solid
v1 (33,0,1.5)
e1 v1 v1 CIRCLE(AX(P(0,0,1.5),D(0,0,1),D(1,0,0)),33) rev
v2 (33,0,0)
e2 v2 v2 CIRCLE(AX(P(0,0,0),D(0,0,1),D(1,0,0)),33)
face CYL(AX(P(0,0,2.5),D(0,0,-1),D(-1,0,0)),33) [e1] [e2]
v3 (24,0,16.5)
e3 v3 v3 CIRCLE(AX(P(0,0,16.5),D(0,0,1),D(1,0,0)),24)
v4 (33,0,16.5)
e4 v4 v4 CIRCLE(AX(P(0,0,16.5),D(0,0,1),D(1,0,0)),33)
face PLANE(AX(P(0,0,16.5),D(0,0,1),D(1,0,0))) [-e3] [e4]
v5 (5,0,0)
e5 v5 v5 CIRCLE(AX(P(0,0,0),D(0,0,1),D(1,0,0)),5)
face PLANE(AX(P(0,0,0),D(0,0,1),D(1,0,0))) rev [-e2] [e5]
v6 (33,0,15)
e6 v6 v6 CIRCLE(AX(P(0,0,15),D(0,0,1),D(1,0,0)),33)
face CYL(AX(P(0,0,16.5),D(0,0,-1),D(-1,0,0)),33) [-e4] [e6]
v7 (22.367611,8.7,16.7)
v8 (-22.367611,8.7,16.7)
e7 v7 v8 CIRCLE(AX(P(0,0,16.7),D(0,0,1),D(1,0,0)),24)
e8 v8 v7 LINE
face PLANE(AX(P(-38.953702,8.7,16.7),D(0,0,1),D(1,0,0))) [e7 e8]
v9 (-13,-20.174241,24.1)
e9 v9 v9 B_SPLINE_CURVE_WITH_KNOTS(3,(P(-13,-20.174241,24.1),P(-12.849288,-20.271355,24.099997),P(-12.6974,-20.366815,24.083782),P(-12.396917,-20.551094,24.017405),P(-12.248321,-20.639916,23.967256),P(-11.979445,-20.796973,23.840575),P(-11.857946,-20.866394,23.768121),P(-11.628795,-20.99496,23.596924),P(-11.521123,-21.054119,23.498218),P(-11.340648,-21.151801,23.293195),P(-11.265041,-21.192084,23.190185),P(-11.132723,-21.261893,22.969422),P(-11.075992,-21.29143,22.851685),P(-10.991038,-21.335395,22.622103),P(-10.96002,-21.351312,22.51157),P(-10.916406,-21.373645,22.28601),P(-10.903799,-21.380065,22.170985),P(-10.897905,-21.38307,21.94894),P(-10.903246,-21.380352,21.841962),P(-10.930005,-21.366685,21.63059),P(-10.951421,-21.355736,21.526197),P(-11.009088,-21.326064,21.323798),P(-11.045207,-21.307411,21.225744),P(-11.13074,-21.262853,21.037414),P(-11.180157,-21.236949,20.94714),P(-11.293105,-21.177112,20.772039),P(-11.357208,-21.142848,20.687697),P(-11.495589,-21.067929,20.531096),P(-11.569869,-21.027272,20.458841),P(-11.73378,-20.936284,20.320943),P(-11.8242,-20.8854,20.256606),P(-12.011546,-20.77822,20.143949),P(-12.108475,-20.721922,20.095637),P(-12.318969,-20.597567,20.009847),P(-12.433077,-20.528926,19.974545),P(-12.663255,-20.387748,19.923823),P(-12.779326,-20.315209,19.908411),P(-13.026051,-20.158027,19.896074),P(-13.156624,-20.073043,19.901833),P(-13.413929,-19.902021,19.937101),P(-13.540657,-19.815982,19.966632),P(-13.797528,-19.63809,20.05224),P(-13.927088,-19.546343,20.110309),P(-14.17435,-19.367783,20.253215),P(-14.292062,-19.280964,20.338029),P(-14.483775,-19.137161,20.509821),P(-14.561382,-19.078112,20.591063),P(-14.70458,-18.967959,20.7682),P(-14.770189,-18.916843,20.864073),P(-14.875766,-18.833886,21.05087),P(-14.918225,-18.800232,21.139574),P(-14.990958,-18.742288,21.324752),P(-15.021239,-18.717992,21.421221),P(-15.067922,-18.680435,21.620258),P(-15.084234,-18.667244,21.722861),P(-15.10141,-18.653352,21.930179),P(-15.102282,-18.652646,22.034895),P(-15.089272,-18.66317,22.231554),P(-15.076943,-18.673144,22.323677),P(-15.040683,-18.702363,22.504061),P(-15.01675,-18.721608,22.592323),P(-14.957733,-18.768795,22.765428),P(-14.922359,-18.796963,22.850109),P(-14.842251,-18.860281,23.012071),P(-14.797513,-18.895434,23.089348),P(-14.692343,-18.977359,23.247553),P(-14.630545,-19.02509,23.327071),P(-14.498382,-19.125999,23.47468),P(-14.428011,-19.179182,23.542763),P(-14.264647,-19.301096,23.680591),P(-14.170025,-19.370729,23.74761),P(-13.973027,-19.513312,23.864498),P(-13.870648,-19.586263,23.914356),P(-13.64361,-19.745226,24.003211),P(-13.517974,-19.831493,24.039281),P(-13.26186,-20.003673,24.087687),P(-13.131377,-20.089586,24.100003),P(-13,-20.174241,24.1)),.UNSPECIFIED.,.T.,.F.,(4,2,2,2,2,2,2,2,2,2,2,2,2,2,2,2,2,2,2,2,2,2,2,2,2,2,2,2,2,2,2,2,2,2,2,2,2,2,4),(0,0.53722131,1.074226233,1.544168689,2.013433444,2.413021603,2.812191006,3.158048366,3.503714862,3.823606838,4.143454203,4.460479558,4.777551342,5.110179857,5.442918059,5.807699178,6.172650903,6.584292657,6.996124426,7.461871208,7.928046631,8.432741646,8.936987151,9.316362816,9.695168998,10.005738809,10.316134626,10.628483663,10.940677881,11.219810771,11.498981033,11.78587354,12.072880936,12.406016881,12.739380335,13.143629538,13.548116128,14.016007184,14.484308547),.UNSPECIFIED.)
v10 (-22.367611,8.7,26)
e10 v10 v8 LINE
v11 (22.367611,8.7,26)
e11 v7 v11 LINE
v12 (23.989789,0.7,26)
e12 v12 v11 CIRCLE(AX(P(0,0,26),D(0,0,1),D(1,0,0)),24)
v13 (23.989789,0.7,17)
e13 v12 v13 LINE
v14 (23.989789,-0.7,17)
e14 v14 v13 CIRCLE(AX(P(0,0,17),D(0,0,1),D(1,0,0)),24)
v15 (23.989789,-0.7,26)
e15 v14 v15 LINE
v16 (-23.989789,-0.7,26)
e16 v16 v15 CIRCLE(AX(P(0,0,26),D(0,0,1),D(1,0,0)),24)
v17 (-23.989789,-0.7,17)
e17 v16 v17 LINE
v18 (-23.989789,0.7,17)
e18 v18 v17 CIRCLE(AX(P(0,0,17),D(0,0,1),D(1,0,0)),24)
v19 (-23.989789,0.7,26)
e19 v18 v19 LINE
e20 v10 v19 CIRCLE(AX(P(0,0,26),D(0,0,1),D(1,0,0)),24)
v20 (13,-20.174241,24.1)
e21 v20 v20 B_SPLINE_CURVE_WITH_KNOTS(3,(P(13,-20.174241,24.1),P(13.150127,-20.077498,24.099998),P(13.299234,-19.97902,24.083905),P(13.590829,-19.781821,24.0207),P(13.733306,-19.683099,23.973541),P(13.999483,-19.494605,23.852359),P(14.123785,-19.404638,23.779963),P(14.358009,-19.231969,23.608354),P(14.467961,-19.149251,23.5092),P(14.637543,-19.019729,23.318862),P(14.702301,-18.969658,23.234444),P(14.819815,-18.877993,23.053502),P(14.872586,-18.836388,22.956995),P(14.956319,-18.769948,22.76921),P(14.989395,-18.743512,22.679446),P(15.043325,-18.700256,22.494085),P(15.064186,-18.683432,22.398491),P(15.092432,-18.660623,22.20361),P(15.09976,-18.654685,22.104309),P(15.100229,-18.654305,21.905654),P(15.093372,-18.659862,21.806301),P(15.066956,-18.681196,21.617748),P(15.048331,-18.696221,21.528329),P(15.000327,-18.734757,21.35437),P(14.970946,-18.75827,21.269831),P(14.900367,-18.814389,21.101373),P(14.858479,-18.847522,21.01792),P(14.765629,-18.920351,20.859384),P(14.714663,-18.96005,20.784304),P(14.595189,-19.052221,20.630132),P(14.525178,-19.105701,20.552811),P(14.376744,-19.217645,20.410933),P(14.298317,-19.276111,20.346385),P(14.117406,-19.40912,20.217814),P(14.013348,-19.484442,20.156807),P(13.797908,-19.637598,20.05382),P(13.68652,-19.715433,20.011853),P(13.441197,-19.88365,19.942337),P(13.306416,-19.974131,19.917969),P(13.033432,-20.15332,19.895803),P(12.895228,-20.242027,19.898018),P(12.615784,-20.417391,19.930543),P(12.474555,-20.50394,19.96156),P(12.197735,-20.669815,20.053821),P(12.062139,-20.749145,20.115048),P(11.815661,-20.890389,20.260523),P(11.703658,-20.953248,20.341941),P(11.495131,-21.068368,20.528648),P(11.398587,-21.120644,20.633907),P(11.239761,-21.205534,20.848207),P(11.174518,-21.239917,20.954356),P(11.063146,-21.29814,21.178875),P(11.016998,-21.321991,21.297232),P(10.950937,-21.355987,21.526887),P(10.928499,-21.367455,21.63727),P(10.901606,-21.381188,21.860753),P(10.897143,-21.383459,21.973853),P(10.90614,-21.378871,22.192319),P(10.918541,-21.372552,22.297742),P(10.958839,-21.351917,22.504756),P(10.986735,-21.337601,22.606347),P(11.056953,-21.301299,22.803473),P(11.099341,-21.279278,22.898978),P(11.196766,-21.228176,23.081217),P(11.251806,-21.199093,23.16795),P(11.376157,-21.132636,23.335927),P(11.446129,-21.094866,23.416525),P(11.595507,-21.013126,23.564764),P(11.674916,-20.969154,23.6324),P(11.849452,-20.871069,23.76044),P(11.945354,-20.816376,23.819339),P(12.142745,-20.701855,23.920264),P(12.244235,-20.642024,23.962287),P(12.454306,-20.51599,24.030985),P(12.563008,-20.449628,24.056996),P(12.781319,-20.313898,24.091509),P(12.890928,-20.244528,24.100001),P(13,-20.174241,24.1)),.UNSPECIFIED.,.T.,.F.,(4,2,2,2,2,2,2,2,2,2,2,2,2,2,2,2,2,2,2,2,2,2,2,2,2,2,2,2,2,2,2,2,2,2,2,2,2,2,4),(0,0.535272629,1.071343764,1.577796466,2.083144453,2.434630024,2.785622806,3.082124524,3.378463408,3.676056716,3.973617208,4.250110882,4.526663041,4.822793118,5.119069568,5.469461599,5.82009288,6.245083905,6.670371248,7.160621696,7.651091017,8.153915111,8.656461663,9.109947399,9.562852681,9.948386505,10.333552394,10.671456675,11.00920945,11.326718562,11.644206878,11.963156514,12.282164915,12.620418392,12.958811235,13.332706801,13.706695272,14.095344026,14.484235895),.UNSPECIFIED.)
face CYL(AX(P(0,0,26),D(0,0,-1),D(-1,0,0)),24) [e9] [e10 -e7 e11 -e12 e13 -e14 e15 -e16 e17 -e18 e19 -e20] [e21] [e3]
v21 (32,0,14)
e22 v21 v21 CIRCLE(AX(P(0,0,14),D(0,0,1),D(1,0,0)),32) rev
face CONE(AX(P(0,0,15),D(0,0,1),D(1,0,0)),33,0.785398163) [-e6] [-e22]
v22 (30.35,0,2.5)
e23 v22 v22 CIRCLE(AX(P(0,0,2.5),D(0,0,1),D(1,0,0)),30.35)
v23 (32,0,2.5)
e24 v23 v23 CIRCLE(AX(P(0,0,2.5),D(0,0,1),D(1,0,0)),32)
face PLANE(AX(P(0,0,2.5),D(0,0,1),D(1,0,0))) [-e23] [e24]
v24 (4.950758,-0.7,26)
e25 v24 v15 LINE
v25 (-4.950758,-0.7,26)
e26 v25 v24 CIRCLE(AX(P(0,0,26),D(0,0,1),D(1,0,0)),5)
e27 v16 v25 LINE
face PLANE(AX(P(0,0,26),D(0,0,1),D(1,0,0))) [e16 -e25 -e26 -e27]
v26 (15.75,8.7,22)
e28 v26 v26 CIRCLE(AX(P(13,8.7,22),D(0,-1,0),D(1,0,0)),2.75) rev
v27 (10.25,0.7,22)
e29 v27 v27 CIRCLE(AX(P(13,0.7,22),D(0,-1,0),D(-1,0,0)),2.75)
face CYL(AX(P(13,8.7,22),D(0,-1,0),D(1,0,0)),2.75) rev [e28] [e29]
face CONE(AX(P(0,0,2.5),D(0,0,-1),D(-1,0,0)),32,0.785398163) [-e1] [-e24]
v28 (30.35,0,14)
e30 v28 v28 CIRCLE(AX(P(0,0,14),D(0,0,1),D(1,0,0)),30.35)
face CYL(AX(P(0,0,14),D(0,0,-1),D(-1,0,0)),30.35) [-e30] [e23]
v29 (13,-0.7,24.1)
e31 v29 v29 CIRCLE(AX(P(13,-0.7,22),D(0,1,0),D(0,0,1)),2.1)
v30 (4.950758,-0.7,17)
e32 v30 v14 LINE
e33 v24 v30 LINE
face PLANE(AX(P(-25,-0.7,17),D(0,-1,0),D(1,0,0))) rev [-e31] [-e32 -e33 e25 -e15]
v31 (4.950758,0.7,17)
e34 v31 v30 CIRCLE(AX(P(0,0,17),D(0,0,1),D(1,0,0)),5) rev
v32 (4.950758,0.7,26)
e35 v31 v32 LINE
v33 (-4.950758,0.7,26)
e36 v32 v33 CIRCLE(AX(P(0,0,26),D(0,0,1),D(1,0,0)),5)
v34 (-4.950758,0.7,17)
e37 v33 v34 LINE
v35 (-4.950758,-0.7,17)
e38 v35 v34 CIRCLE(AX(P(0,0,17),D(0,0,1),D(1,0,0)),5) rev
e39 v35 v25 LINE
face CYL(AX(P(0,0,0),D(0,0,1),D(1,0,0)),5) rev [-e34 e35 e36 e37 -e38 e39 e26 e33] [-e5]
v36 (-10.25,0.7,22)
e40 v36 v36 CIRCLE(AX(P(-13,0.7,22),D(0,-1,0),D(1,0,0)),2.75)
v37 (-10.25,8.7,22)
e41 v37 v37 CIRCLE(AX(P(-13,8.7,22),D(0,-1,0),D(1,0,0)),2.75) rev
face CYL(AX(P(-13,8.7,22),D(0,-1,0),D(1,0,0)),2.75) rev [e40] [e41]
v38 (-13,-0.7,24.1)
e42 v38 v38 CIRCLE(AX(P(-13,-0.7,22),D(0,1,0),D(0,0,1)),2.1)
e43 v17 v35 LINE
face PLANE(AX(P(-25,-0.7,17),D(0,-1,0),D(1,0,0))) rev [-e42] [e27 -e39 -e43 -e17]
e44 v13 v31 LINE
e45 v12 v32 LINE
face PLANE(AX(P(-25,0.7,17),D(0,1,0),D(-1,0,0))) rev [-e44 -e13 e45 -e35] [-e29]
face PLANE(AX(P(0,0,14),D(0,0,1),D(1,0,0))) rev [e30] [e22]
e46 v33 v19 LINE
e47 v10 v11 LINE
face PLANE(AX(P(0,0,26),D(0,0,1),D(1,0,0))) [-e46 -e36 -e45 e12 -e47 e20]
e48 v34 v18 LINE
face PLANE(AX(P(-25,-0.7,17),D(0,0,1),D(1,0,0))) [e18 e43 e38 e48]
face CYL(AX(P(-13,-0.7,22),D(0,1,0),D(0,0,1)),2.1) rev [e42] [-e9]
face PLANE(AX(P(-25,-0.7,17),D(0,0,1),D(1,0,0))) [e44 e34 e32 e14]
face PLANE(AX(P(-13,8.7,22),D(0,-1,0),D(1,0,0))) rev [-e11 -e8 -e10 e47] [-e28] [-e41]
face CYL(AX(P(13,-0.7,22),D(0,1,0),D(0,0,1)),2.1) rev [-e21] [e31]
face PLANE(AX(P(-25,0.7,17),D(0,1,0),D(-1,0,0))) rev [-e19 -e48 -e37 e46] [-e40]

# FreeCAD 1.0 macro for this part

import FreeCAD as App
import Part
import Sketcher
from FreeCAD import Vector
Q = App.Units.Quantity


def edges_at(feature, points):
    """Names of the edges that pass closest to the given points."""
    edges = feature.Shape.Edges
    near = lambda p: min(range(len(edges)), key=lambda i: edges[i].distToShape(Part.Vertex(*p))[0])
    return sorted({f"Edge{near(p) + 1}" for p in points})


def add_polygon(sketch, points):
    """Adds a closed chain of lines whose ends are joined by coincident constraints."""
    first, n = sketch.GeometryCount, len(points)
    for a, b in zip(points, points[1:] + points[:1]):
        sketch.addGeometry(Part.LineSegment(App.Vector(*a, 0), App.Vector(*b, 0)), False)
    for i in range(n):
        sketch.addConstraint(Sketcher.Constraint("Coincident", first + i, 2, first + (i + 1) % n, 1))

doc = App.newDocument("Part")
body = doc.addObject("PartDesign::Body", "Body")

# Sketch on XY plane
sketch1 = body.newObject("Sketcher::SketchObject", "Sketch")
sketch1.AttachmentSupport = (doc.getObject("XY_Plane"), [""])
sketch1.MapMode = "FlatFace"
sketch1.addGeometry(Part.Circle(Vector(0, 0, 0), Vector(0, 0, 1), 33), False)
sketch1.addConstraint([
    Sketcher.Constraint("Coincident", 0, 3, -1, 1),
    Sketcher.Constraint("Diameter", 0, Q("66 mm")),
])
pad1 = body.newObject("PartDesign::Pad", "Pad")
pad1.Profile = sketch1
pad1.Length = 2.5

# Sketch on XY plane
sketch2 = body.newObject("Sketcher::SketchObject", "Sketch001")
sketch2.AttachmentSupport = (doc.getObject("XY_Plane"), [""])
sketch2.MapMode = "FlatFace"
sketch2.AttachmentOffset = App.Placement(Vector(0, 0, 2.5), App.Rotation())
sketch2.addGeometry(Part.Circle(Vector(0, 0, 0), Vector(0, 0, 1), 30), False)
sketch2.addConstraint([
    Sketcher.Constraint("Coincident", 0, 3, -1, 1),
    Sketcher.Constraint("Diameter", 0, Q("60.7 mm")),
])
pad2 = body.newObject("PartDesign::Pad", "Pad001")
pad2.Profile = sketch2
pad2.Length = 11.5

# Sketch on XY plane
sketch3 = body.newObject("Sketcher::SketchObject", "Sketch002")
sketch3.AttachmentSupport = (doc.getObject("XY_Plane"), [""])
sketch3.MapMode = "FlatFace"
sketch3.AttachmentOffset = App.Placement(Vector(0, 0, 14), App.Rotation())
sketch3.addGeometry(Part.Circle(Vector(0, 0, 0), Vector(0, 0, 1), 33), False)
sketch3.addConstraint([
    Sketcher.Constraint("Coincident", 0, 3, -1, 1),
    Sketcher.Constraint("Diameter", 0, Q("66 mm")),
])
pad3 = body.newObject("PartDesign::Pad", "Pad002")
pad3.Profile = sketch3
pad3.Length = 2.5

# Sketch on XY plane
sketch4 = body.newObject("Sketcher::SketchObject", "Sketch003")
sketch4.AttachmentSupport = (doc.getObject("XY_Plane"), [""])
sketch4.MapMode = "FlatFace"
sketch4.AttachmentOffset = App.Placement(Vector(0, 0, 16.5), App.Rotation())
sketch4.addGeometry(Part.Circle(Vector(0, 0, 0), Vector(0, 0, 1), 24), False)
sketch4.addConstraint([
    Sketcher.Constraint("Coincident", 0, 3, -1, 1),
    Sketcher.Constraint("Diameter", 0, Q("48 mm")),
])
pad4 = body.newObject("PartDesign::Pad", "Pad003")
pad4.Profile = sketch4
pad4.Length = 9.5
doc.recompute()

chamfer = body.newObject("PartDesign::Chamfer", "Chamfer")
chamfer.Base = (pad4, edges_at(pad4, [(-33, 0, 2.5), (-33, 0, 14)]))
chamfer.Size = 1

# Sketch on XY plane
sketch5 = body.newObject("Sketcher::SketchObject", "Sketch004")
sketch5.AttachmentSupport = (doc.getObject("XY_Plane"), [""])
sketch5.MapMode = "FlatFace"
sketch5.AttachmentOffset = App.Placement(Vector(0, 0, 26), App.Rotation())
sketch5.addGeometry(Part.Circle(Vector(0, 0, 0), Vector(0, 0, 1), 5), False)
sketch5.addConstraint([
    Sketcher.Constraint("Coincident", 0, 3, -1, 1),
    Sketcher.Constraint("Diameter", 0, Q("10 mm")),
])
pocket1 = body.newObject("PartDesign::Pocket", "Pocket")
pocket1.Profile = sketch5
pocket1.Type = "ThroughAll"

# Sketch on XY plane
sketch6 = body.newObject("Sketcher::SketchObject", "Sketch005")
sketch6.AttachmentSupport = (doc.getObject("XY_Plane"), [""])
sketch6.MapMode = "FlatFace"
sketch6.AttachmentOffset = App.Placement(Vector(0, 0, 26), App.Rotation())
add_polygon(sketch6, [(-25, 0.7), (-25, -0.7), (25, -0.7), (25, 0.7)])  # lines 0-3
sketch6.addConstraint([
    Sketcher.Constraint("Vertical", 0),
    Sketcher.Constraint("Horizontal", 1),
    Sketcher.Constraint("Vertical", 2),
    Sketcher.Constraint("Horizontal", 3),
    Sketcher.Constraint("Symmetric", 0, 2, 2, 2, -1, 1),
    Sketcher.Constraint("DistanceX", 1, 1, 1, 2, Q("50 mm")),
    Sketcher.Constraint("DistanceY", 0, 2, 0, 1, Q("1.4 mm")),
])
pocket2 = body.newObject("PartDesign::Pocket", "Pocket001")
pocket2.Profile = sketch6
pocket2.Length = 9

# Sketch on XZ plane
sketch7 = body.newObject("Sketcher::SketchObject", "Sketch006")
sketch7.AttachmentSupport = (doc.getObject("XZ_Plane"), [""])
sketch7.MapMode = "FlatFace"
sketch7.AttachmentOffset = App.Placement(Vector(0, 0, -0.7), App.Rotation())
sketch7.addGeometry([
    Part.Circle(Vector(-13, 22, 0), Vector(0, 0, 1), 2.8),
    Part.Circle(Vector(13, 22, 0), Vector(0, 0, 1), 2.8),
], False)
sketch7.addConstraint([
    Sketcher.Constraint("Equal", 0, 1),
    Sketcher.Constraint("Symmetric", 0, 3, 1, 3, -2),
    Sketcher.Constraint("Diameter", 0, Q("5.5 mm")),
    Sketcher.Constraint("DistanceX", 0, 3, -1, 1, Q("13 mm")),
    Sketcher.Constraint("DistanceY", -1, 1, 0, 3, Q("22 mm")),
])
pocket3 = body.newObject("PartDesign::Pocket", "Pocket002")
pocket3.Profile = sketch7
pocket3.Length = 8

# Sketch on XZ plane
sketch8 = body.newObject("Sketcher::SketchObject", "Sketch007")
sketch8.AttachmentSupport = (doc.getObject("XZ_Plane"), [""])
sketch8.MapMode = "FlatFace"
sketch8.AttachmentOffset = App.Placement(Vector(0, 0, -8.7), App.Rotation())
sketch8.addGeometry([
    Part.Circle(Vector(-13, 22, 0), Vector(0, 0, 1), 5),
    Part.Circle(Vector(13, 22, 0), Vector(0, 0, 1), 5),
], False)
sketch8.addConstraint([
    Sketcher.Constraint("Equal", 0, 1),
    Sketcher.Constraint("Symmetric", 0, 3, 1, 3, -2),
    Sketcher.Constraint("Diameter", 0, Q("10 mm")),
    Sketcher.Constraint("DistanceX", 0, 3, -1, 1, Q("13 mm")),
    Sketcher.Constraint("DistanceY", -1, 1, 0, 3, Q("22 mm")),
])
pocket4 = body.newObject("PartDesign::Pocket", "Pocket003")
pocket4.Profile = sketch8
pocket4.Type = "ThroughAll"

# Sketch on XZ plane
sketch9 = body.newObject("Sketcher::SketchObject", "Sketch008")
sketch9.AttachmentSupport = (doc.getObject("XZ_Plane"), [""])
sketch9.MapMode = "FlatFace"
sketch9.AttachmentOffset = App.Placement(Vector(0, 0, 0.7), App.Rotation())
sketch9.addGeometry([
    Part.Circle(Vector(-13, 22, 0), Vector(0, 0, 1), 2.1),
    Part.Circle(Vector(13, 22, 0), Vector(0, 0, 1), 2.1),
], False)
sketch9.addConstraint([
    Sketcher.Constraint("Equal", 0, 1),
    Sketcher.Constraint("Symmetric", 0, 3, 1, 3, -2),
    Sketcher.Constraint("Diameter", 0, Q("4.2 mm")),
    Sketcher.Constraint("DistanceX", 0, 3, -1, 1, Q("13 mm")),
    Sketcher.Constraint("DistanceY", -1, 1, 0, 3, Q("22 mm")),
])
doc.recompute()
hole = body.newObject("PartDesign::Hole", "Hole")
hole.Profile = sketch9
hole.ThreadType = "None"
hole.Diameter = 4.2
hole.DepthType = "ThroughAll"
hole.Reversed = True

# Sketch on XY plane
sketch10 = body.newObject("Sketcher::SketchObject", "Sketch009")
sketch10.AttachmentSupport = (doc.getObject("XY_Plane"), [""])
sketch10.MapMode = "FlatFace"
sketch10.AttachmentOffset = App.Placement(Vector(0, 0, 26), App.Rotation())
add_polygon(sketch10, [(-18, 23), (-18, 9), (-8, 9), (-8, 23)])  # lines 0-3
add_polygon(sketch10, [(8, 23), (8, 9), (18, 9), (18, 23)])  # lines 4-7
sketch10.addConstraint([
    Sketcher.Constraint("Vertical", 0),
    Sketcher.Constraint("Horizontal", 1),
    Sketcher.Constraint("Vertical", 2),
    Sketcher.Constraint("Horizontal", 3),
    Sketcher.Constraint("Vertical", 4),
    Sketcher.Constraint("Horizontal", 5),
    Sketcher.Constraint("Vertical", 6),
    Sketcher.Constraint("Horizontal", 7),
    Sketcher.Constraint("Symmetric", 1, 2, 4, 2, -2),
    Sketcher.Constraint("Symmetric", 3, 2, 6, 2, -2),
    Sketcher.Constraint("DistanceX", 1, 1, 1, 2, Q("10 mm")),
    Sketcher.Constraint("DistanceY", 0, 2, 0, 1, Q("14 mm")),
    Sketcher.Constraint("DistanceX", 0, 2, -1, 1, Q("18 mm")),
    Sketcher.Constraint("DistanceY", -1, 1, 0, 2, Q("8.7 mm")),
])
pocket5 = body.newObject("PartDesign::Pocket", "Pocket004")
pocket5.Profile = sketch10
pocket5.Length = 4

# Sketch on XY plane
sketch11 = body.newObject("Sketcher::SketchObject", "Sketch010")
sketch11.AttachmentSupport = (doc.getObject("XY_Plane"), [""])
sketch11.MapMode = "FlatFace"
sketch11.AttachmentOffset = App.Placement(Vector(0, 0, 26), App.Rotation())
add_polygon(sketch11, [(-39, 25), (-39, 9), (34, 9), (34, 25)])  # lines 0-3
sketch11.addConstraint([
    Sketcher.Constraint("Vertical", 0),
    Sketcher.Constraint("Horizontal", 1),
    Sketcher.Constraint("Vertical", 2),
    Sketcher.Constraint("Horizontal", 3),
    Sketcher.Constraint("DistanceY", -1, 1, 0, 2, Q("8.7 mm")),
    Sketcher.Constraint("DistanceX", 1, 1, 1, 2, Q("72.48787 mm")),
    Sketcher.Constraint("DistanceY", 0, 2, 0, 1, Q("16.576438 mm")),
    Sketcher.Constraint("DistanceX", 0, 2, -1, 1, Q("38.953702 mm")),
])
pocket6 = body.newObject("PartDesign::Pocket", "Pocket005")
pocket6.Profile = sketch11
pocket6.Length = 9.3

doc.recompute()
